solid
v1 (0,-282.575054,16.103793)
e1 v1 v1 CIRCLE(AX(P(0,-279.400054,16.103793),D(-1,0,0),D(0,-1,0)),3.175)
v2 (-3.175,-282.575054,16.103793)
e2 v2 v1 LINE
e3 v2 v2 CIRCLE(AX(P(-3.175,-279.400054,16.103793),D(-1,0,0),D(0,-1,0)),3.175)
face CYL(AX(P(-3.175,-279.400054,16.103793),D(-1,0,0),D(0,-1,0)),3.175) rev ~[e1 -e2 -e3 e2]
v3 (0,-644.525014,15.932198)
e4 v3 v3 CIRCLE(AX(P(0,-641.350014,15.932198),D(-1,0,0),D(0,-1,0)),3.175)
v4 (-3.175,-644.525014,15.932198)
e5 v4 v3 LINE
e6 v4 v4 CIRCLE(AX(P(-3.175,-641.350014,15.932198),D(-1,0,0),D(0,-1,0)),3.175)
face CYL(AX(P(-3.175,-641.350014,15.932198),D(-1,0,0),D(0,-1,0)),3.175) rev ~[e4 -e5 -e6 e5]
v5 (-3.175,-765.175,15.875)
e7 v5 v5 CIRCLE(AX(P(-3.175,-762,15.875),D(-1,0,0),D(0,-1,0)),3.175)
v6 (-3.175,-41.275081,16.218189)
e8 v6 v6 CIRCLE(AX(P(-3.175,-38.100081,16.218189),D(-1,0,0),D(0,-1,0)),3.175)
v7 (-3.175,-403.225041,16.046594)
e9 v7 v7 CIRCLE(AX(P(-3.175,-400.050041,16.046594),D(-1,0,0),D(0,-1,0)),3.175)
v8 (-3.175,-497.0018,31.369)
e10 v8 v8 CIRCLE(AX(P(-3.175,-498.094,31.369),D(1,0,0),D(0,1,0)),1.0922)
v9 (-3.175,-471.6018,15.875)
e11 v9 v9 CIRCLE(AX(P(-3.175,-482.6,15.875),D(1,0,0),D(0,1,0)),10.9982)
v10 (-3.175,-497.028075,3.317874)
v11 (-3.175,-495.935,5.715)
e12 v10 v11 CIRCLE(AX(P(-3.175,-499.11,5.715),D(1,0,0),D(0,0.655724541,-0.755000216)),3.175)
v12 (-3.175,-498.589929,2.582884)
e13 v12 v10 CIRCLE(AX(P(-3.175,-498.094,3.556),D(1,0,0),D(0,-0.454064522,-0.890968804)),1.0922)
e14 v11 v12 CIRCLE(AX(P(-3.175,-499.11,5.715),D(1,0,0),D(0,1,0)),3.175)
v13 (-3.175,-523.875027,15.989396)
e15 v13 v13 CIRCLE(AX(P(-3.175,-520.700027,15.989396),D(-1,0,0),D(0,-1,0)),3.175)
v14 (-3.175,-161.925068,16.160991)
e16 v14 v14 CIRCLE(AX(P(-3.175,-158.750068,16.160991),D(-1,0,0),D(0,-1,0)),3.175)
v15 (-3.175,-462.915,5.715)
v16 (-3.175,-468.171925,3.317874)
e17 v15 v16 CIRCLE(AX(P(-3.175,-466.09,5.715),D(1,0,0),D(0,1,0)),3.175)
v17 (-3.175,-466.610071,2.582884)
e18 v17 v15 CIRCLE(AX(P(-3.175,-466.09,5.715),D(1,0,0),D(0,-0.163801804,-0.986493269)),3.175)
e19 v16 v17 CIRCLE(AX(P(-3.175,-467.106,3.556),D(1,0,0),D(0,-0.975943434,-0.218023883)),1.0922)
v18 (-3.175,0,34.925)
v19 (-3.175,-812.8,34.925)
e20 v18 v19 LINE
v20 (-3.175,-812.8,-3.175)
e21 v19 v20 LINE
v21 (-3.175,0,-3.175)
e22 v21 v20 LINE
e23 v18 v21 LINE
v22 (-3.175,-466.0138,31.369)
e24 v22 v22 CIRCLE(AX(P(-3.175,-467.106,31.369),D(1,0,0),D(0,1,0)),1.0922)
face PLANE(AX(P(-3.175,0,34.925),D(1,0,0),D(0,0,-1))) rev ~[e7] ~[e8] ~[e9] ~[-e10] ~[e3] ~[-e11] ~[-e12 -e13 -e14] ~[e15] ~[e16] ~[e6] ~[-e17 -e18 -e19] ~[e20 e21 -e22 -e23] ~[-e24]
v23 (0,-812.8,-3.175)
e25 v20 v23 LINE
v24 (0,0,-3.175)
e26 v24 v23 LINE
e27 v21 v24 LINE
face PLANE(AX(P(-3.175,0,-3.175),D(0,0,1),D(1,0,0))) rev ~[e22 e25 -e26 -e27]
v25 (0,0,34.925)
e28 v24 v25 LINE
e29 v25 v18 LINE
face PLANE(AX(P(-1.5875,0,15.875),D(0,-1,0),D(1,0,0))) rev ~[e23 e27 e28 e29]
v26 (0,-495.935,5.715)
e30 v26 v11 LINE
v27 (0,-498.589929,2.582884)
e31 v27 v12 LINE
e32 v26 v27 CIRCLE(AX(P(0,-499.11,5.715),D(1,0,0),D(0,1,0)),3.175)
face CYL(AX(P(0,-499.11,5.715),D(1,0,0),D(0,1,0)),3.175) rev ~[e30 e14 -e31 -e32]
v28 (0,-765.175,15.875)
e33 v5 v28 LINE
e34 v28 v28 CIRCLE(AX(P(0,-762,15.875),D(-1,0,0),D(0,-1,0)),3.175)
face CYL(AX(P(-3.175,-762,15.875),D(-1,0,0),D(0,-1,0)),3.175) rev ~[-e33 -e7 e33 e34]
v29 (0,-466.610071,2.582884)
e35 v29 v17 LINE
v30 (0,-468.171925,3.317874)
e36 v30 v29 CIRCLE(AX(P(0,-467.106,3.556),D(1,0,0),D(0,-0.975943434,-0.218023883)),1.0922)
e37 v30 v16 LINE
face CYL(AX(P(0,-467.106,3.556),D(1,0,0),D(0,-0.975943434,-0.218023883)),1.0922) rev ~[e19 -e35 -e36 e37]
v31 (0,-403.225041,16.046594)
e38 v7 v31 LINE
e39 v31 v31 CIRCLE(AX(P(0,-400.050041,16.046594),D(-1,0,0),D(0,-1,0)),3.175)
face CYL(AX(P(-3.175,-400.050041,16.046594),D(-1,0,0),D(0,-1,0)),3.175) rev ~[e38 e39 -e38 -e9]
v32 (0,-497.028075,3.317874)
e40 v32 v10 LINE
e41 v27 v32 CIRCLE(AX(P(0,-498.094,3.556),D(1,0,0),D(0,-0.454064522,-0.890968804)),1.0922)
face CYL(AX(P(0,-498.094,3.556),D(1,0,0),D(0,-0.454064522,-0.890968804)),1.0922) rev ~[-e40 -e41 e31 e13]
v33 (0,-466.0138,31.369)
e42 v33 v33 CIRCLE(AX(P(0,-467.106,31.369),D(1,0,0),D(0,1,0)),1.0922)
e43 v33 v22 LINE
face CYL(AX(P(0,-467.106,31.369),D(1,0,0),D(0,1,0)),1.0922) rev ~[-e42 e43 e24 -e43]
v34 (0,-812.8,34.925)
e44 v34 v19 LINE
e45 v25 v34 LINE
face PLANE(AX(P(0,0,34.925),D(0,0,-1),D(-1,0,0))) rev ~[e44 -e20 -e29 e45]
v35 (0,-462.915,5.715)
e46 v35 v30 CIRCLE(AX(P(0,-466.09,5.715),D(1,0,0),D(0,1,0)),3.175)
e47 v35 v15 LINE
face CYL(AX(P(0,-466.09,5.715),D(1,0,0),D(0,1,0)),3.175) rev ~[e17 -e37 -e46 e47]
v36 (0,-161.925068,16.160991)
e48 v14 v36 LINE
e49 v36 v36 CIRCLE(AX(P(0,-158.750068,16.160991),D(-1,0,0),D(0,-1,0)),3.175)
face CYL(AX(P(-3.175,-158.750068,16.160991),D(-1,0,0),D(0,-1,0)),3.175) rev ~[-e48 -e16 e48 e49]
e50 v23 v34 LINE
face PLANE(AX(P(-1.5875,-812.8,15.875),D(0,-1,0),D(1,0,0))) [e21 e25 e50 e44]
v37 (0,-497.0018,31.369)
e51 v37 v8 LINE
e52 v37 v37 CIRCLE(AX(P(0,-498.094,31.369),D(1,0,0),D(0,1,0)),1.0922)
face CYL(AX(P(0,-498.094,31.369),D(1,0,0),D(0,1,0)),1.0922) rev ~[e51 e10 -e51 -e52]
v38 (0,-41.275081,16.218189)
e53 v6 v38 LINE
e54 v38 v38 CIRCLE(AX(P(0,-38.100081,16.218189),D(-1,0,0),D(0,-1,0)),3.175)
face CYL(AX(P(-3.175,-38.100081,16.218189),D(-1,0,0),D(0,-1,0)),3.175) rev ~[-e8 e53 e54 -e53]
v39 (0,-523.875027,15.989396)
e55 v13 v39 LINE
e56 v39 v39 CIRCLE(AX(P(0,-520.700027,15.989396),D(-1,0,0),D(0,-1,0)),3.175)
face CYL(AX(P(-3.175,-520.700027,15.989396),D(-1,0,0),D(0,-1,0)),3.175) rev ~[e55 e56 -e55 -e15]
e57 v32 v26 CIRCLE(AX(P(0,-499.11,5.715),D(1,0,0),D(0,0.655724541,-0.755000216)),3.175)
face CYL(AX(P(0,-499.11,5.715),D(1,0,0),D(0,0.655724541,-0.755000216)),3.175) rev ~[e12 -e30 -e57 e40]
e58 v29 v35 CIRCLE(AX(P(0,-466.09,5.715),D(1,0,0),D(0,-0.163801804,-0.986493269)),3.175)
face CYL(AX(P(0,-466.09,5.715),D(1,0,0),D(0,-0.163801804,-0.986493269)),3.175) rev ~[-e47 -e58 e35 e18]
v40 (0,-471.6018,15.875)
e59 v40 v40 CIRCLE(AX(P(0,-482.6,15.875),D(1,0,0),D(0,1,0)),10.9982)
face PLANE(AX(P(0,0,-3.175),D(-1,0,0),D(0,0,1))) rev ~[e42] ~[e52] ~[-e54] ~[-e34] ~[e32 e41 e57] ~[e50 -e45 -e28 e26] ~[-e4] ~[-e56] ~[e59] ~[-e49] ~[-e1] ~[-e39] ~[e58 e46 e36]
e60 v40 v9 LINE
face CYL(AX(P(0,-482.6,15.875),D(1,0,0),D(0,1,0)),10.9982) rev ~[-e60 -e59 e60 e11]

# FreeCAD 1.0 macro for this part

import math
import FreeCAD as App
import Part
import Sketcher
from FreeCAD import Vector
Q = App.Units.Quantity


def add_polygon(sketch, points):
    """Adds a closed chain of lines whose ends are joined by coincident constraints."""
    first, n = sketch.GeometryCount, len(points)
    for a, b in zip(points, points[1:] + points[:1]):
        sketch.addGeometry(Part.LineSegment(App.Vector(*a, 0), App.Vector(*b, 0)), False)
    for i in range(n):
        sketch.addConstraint(Sketcher.Constraint("Coincident", first + i, 2, first + (i + 1) % n, 1))

doc = App.newDocument("Part")
params = doc.addObject("Spreadsheet::Sheet", "Params")
for row, (alias, value) in enumerate([
    ("sketch1_height", "1.5 in"),
    ("sketch1_width", "0.125 in"),
    ("pad1_length", "32 in"),
    ("sketch2_diameter", "0.866 in"),
    ("sketch2_diameter2", "0.086 in"),
    ("sketch2_radius", "0.125 in"),
    ("pocket1_length", "1 in"),
    ("sketch3_diameter", "0.25 in"),
    ("pocket2_length", "1 in"),
], start=1):
    params.set(f"A{row}", alias)
    params.set(f"B{row}", "=" + value)
    params.setAlias(f"B{row}", alias)

body = doc.addObject("PartDesign::Body", "Body")

sketch1 = body.newObject("Sketcher::SketchObject", "Sketch")
sketch1.AttachmentSupport = (doc.getObject("XZ_Plane"), [""])
sketch1.MapMode = "FlatFace"
add_polygon(sketch1, [(0, -3.2), (0, 34.9), (-3.2, 34.9), (-3.2, -3.2)])
sketch1.addConstraint([
    Sketcher.Constraint("Vertical", 0),
    Sketcher.Constraint("Horizontal", 1),
    Sketcher.Constraint("Vertical", 2),
    Sketcher.Constraint("Horizontal", 3),
    Sketcher.Constraint("PointOnObject", 0, 2, -2),
    Sketcher.Constraint("DistanceY", 0, 1, 0, 2, Q("1.5 in")),
    Sketcher.Constraint("DistanceX", 1, 2, 1, 1, Q("0.125 in")),
    Sketcher.Constraint("DistanceY", -1, 1, 0, 2, Q("1.375 in")),
])
sketch1.setExpression("Constraints[9]", "Params.sketch1_height")
sketch1.setExpression("Constraints[10]", "Params.sketch1_width")
pad1 = body.newObject("PartDesign::Pad", "Pad")
pad1.Profile = sketch1
pad1.setExpression("Length", "Params.pad1_length")

sketch2 = body.newObject("Sketcher::SketchObject", "Sketch001")
sketch2.AttachmentSupport = (doc.getObject("YZ_Plane"), [""])
sketch2.MapMode = "FlatFace"
sketch2.addGeometry([
    Part.Circle(Vector(-482.6, 15.9, 0), Vector(0, 0, 1), 11),
    Part.ArcOfCircle(Part.Circle(Vector(-499.1, 5.7, 0), Vector(0, 0, 1), 3.2), math.radians(-49), math.radians(0)),
    Part.ArcOfCircle(Part.Circle(Vector(-499.1, 5.7, 0), Vector(0, 0, 1), 3.2), math.radians(0), math.radians(279)),
    Part.ArcOfCircle(Part.Circle(Vector(-498.1, 3.6, 0), Vector(0, 0, 1), 1.1), math.radians(-117), math.radians(-13)),
    Part.ArcOfCircle(Part.Circle(Vector(-466.1, 5.7, 0), Vector(0, 0, 1), 3.2), math.radians(-99), math.radians(0)),
    Part.ArcOfCircle(Part.Circle(Vector(-466.1, 5.7, 0), Vector(0, 0, 1), 3.2), math.radians(0), math.radians(229)),
    Part.ArcOfCircle(Part.Circle(Vector(-467.1, 3.6, 0), Vector(0, 0, 1), 1.1), math.radians(-167), math.radians(-63)),
    Part.Circle(Vector(-498.1, 31.4, 0), Vector(0, 0, 1), 1.1),
    Part.Circle(Vector(-467.1, 31.4, 0), Vector(0, 0, 1), 1.1),
], False)
sketch2.addConstraint([
    Sketcher.Constraint("Tangent", 1, 2, 2, 1),
    Sketcher.Constraint("Coincident", 2, 2, 3, 1),
    Sketcher.Constraint("Coincident", 3, 2, 1, 1),
    Sketcher.Constraint("Tangent", 4, 2, 5, 1),
    Sketcher.Constraint("Coincident", 5, 2, 6, 1),
    Sketcher.Constraint("Coincident", 6, 2, 4, 1),
    Sketcher.Constraint("Equal", 1, 2),
    Sketcher.Constraint("Equal", 2, 4),
    Sketcher.Constraint("Equal", 4, 5),
    Sketcher.Constraint("Equal", 3, 6),
    Sketcher.Constraint("Equal", 6, 7),
    Sketcher.Constraint("Equal", 7, 8),
    Sketcher.Constraint("Horizontal", 2, 3, 4, 3),
    Sketcher.Constraint("Horizontal", 3, 3, 6, 3),
    Sketcher.Constraint("Horizontal", 7, 3, 8, 3),
    Sketcher.Constraint("Horizontal", 5, 3, 1, 2),
    Sketcher.Constraint("Horizontal", 1, 2, 4, 2),
    Sketcher.Constraint("Horizontal", 3, 2, 5, 2),
    Sketcher.Constraint("Vertical", 3, 3, 7, 3),
    Sketcher.Constraint("Vertical", 6, 3, 8, 3),
    Sketcher.Constraint("Diameter", 0, Q("0.866 in")),
    Sketcher.Constraint("Diameter", 7, Q("0.086 in")),
    Sketcher.Constraint("DistanceX", 0, 3, -1, 1, Q("19 in")),
    Sketcher.Constraint("Radius", 1, Q("0.125 in")),
    Sketcher.Constraint("DistanceY", 1, 3, 0, 3, Q("0.4 in")),
    Sketcher.Constraint("DistanceX", 1, 3, 4, 3, Q("1.3 in")),
    Sketcher.Constraint("DistanceX", 1, 3, -1, 1, Q("19.65 in")),
    Sketcher.Constraint("DistanceX", 3, 3, -1, 1, Q("19.61 in")),
    Sketcher.Constraint("DistanceY", -1, 1, 3, 3, Q("0.14 in")),
    Sketcher.Constraint("DistanceY", 0, 3, 7, 3, Q("0.61 in")),
    Sketcher.Constraint("DistanceY", -1, 1, 0, 3, Q("0.625 in")),
])
sketch2.setExpression("Constraints[20]", "Params.sketch2_diameter")
sketch2.setExpression("Constraints[21]", "Params.sketch2_diameter2")
sketch2.setExpression("Constraints[23]", "Params.sketch2_radius")
pocket1 = body.newObject("PartDesign::Pocket", "Pocket")
pocket1.Profile = sketch2
pocket1.setExpression("Length", "Params.pocket1_length")

sketch3 = body.newObject("Sketcher::SketchObject", "Sketch002")
sketch3.AttachmentSupport = (doc.getObject("YZ_Plane"), [""])
sketch3.MapMode = "FlatFace"
sketch3.AttachmentOffset = App.Placement(Vector(0, 0, -0.125 * 25.4), App.Rotation())
sketch3.addGeometry([
    Part.Circle(Vector(-762, 15.9, 0), Vector(0, 0, 1), 3.2),
    Part.Circle(Vector(-641.4, 15.9, 0), Vector(0, 0, 1), 3.2),
    Part.Circle(Vector(-520.7, 16, 0), Vector(0, 0, 1), 3.2),
    Part.Circle(Vector(-400.1, 16, 0), Vector(0, 0, 1), 3.2),
    Part.Circle(Vector(-279.4, 16.1, 0), Vector(0, 0, 1), 3.2),
    Part.Circle(Vector(-158.8, 16.2, 0), Vector(0, 0, 1), 3.2),
    Part.Circle(Vector(-38.1, 16.2, 0), Vector(0, 0, 1), 3.2),
], False)
sketch3.addConstraint([
    Sketcher.Constraint("Equal", 0, 1),
    Sketcher.Constraint("Equal", 1, 2),
    Sketcher.Constraint("Equal", 2, 3),
    Sketcher.Constraint("Equal", 3, 4),
    Sketcher.Constraint("Equal", 4, 5),
    Sketcher.Constraint("Equal", 5, 6),
    Sketcher.Constraint("Diameter", 0, Q("0.25 in")),
    Sketcher.Constraint("DistanceX", 0, 3, -1, 1, Q("30 in")),
    Sketcher.Constraint("DistanceY", -1, 1, 0, 3, Q("0.625 in")),
    Sketcher.Constraint("DistanceY", -1, 1, 1, 3, 15.932198),
    Sketcher.Constraint("DistanceY", 1, 3, 2, 3, 0.057198),
    Sketcher.Constraint("DistanceY", 2, 3, 3, 3, 0.057198),
    Sketcher.Constraint("DistanceY", 3, 3, 4, 3, 0.057198),
    Sketcher.Constraint("DistanceY", 4, 3, 5, 3, 0.057198),
    Sketcher.Constraint("DistanceY", 5, 3, 6, 3, 0.057198),
    Sketcher.Constraint("DistanceX", 3, 3, -1, 1, 400.050041),
    Sketcher.Constraint("DistanceX", 6, 3, -1, 1, 38.100081),
    Sketcher.Constraint("DistanceX", 1, 3, 4, 3, 361.949959),
    Sketcher.Constraint("DistanceX", 2, 3, 5, 3, 361.949959),
    Sketcher.Constraint("DistanceX", 1, 3, -1, 1, 641.350014),
    Sketcher.Constraint("DistanceX", 2, 3, -1, 1, 520.700027),
])
sketch3.setExpression("Constraints[6]", "Params.sketch3_diameter")
pocket2 = body.newObject("PartDesign::Pocket", "Pocket001")
pocket2.Profile = sketch3
pocket2.setExpression("Length", "Params.pocket2_length")
pocket2.Reversed = True

doc.recompute()
